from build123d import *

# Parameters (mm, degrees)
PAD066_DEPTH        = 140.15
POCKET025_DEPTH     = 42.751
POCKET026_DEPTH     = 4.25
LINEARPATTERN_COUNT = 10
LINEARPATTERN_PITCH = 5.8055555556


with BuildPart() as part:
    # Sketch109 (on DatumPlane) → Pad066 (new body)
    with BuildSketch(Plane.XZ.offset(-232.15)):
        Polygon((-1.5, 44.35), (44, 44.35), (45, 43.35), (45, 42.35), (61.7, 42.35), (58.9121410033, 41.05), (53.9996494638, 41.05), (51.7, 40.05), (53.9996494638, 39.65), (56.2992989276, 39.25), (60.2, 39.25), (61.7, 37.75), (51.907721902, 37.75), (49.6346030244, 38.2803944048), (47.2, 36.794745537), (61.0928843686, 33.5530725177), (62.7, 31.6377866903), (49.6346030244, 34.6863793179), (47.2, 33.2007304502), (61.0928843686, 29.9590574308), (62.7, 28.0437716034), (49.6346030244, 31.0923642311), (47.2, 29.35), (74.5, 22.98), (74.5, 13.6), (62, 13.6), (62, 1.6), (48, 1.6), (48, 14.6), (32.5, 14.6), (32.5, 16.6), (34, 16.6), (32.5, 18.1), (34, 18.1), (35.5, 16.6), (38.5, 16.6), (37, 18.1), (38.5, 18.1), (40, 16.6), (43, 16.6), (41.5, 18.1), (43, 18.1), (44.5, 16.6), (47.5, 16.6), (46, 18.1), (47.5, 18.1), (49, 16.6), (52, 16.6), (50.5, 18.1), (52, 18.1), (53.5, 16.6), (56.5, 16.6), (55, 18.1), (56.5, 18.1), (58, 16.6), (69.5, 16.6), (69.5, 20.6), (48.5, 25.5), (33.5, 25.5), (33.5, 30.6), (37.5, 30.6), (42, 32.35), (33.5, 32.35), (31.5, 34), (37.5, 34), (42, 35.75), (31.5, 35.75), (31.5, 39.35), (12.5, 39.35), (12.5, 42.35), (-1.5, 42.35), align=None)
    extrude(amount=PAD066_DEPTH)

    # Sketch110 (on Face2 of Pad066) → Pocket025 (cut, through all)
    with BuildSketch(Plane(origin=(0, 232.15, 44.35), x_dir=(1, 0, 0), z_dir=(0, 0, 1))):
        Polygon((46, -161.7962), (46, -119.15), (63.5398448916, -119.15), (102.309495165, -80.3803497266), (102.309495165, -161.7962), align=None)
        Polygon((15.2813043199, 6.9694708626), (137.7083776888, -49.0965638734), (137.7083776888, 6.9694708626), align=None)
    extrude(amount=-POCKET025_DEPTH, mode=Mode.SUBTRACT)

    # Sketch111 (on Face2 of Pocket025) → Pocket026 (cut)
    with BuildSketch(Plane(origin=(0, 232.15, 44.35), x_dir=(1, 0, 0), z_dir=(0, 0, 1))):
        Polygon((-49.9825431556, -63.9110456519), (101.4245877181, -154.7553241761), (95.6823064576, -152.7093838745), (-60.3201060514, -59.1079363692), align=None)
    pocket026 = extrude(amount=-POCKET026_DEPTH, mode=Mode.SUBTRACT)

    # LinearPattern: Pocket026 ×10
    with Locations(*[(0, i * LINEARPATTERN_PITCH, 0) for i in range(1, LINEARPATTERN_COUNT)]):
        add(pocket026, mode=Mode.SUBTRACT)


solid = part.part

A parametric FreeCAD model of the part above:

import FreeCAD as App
import Part
import Sketcher

V = App.Vector
Q = App.Units.Quantity


def add_polygon(sketch, points):
    """Adds a closed chain of lines whose ends are joined by coincident constraints."""
    first, n = sketch.GeometryCount, len(points)
    for a, b in zip(points, points[1:] + points[:1]):
        sketch.addGeometry(Part.LineSegment(App.Vector(*a, 0), App.Vector(*b, 0)), False)
    for i in range(n):
        sketch.addConstraint(Sketcher.Constraint("Coincident", first + i, 2, first + (i + 1) % n, 1))

doc = App.newDocument("Part")
body = doc.addObject("PartDesign::Body", "Body")

sketch1 = doc.addObject("Sketcher::SketchObject", "Sketch")
body.addObject(sketch1)
sketch1.AttachmentSupport = (doc.XZ_Plane, [""])
sketch1.MapMode = "FlatFace"
sketch1.AttachmentOffset = App.Placement(V(0, 0, -232.15), App.Rotation())
add_polygon(sketch1, [(44, 44.4), (-1.5, 44.4), (-1.5, 42.4), (12.5, 42.4), (12.5, 39.4), (31.5, 39.4), (31.5, 35.8), (42, 35.8), (37.5, 34), (31.5, 34), (33.5, 32.4), (42, 32.4), (37.5, 30.6), (33.5, 30.6), (33.5, 25.5), (48.5, 25.5), (69.5, 20.6), (69.5, 16.6), (58, 16.6), (56.5, 18.1), (55, 18.1), (56.5, 16.6), (53.5, 16.6), (52, 18.1), (50.5, 18.1), (52, 16.6), (49, 16.6), (47.5, 18.1), (46, 18.1), (47.5, 16.6), (44.5, 16.6), (43, 18.1), (41.5, 18.1), (43, 16.6), (40, 16.6), (38.5, 18.1), (37, 18.1), (38.5, 16.6), (35.5, 16.6), (34, 18.1), (32.5, 18.1), (34, 16.6), (32.5, 16.6), (32.5, 14.6), (48, 14.6), (48, 1.6), (62, 1.6), (62, 13.6), (74.5, 13.6), (74.5, 23), (47.2, 29.4), (49.6, 31.1), (62.7, 28), (61.1, 30), (47.2, 33.2), (49.6, 34.7), (62.7, 31.6), (61.1, 33.6), (47.2, 36.8), (49.6, 38.3), (51.9, 37.8), (61.7, 37.8), (60.2, 39.2), (56.3, 39.2), (51.7, 40), (54, 41), (58.9, 41), (61.7, 42.4), (45, 42.4), (45, 43.4)])
sketch1.addConstraint([
    Sketcher.Constraint("Horizontal", 0),
    Sketcher.Constraint("Vertical", 1),
    Sketcher.Constraint("Horizontal", 2),
    Sketcher.Constraint("Vertical", 3),
    Sketcher.Constraint("Horizontal", 4),
    Sketcher.Constraint("Vertical", 5),
    Sketcher.Constraint("Horizontal", 6),
    Sketcher.Constraint("Horizontal", 8),
    Sketcher.Constraint("Horizontal", 10),
    Sketcher.Constraint("Horizontal", 12),
    Sketcher.Constraint("Vertical", 13),
    Sketcher.Constraint("Horizontal", 14),
    Sketcher.Constraint("Vertical", 16),
    Sketcher.Constraint("Horizontal", 17),
    Sketcher.Constraint("Horizontal", 19),
    Sketcher.Constraint("Horizontal", 21),
    Sketcher.Constraint("Horizontal", 23),
    Sketcher.Constraint("Horizontal", 25),
    Sketcher.Constraint("Horizontal", 27),
    Sketcher.Constraint("Horizontal", 29),
    Sketcher.Constraint("Horizontal", 31),
    Sketcher.Constraint("Horizontal", 33),
    Sketcher.Constraint("Horizontal", 35),
    Sketcher.Constraint("Horizontal", 37),
    Sketcher.Constraint("Horizontal", 39),
    Sketcher.Constraint("Horizontal", 41),
    Sketcher.Constraint("Vertical", 42),
    Sketcher.Constraint("Horizontal", 43),
    Sketcher.Constraint("Vertical", 44),
    Sketcher.Constraint("Horizontal", 45),
    Sketcher.Constraint("Vertical", 46),
    Sketcher.Constraint("Horizontal", 47),
    Sketcher.Constraint("Vertical", 48),
    Sketcher.Constraint("Horizontal", 60),
    Sketcher.Constraint("Horizontal", 62),
    Sketcher.Constraint("Horizontal", 65),
    Sketcher.Constraint("Horizontal", 67),
    Sketcher.Constraint("Vertical", 68),
    Sketcher.Constraint("Parallel", 7, 11),
    Sketcher.Constraint("Parallel", 18, 20),
    Sketcher.Constraint("Parallel", 20, 22),
    Sketcher.Constraint("Parallel", 22, 24),
    Sketcher.Constraint("Parallel", 24, 26),
    Sketcher.Constraint("Parallel", 26, 28),
    Sketcher.Constraint("Parallel", 28, 30),
    Sketcher.Constraint("Parallel", 30, 32),
    Sketcher.Constraint("Parallel", 32, 34),
    Sketcher.Constraint("Parallel", 34, 36),
    Sketcher.Constraint("Parallel", 36, 38),
    Sketcher.Constraint("Parallel", 38, 40),
    Sketcher.Constraint("Parallel", 15, 49),
    Sketcher.Constraint("Parallel", 49, 51),
    Sketcher.Constraint("Parallel", 51, 53),
    Sketcher.Constraint("Parallel", 53, 55),
    Sketcher.Constraint("Parallel", 52, 56),
    Sketcher.Constraint("Parallel", 55, 57),
    Sketcher.Constraint("Parallel", 54, 58),
    Sketcher.Constraint("Parallel", 57, 59),
    Sketcher.Constraint("Parallel", 40, 61),
    Sketcher.Constraint("Parallel", 61, 69),
    Sketcher.Constraint("Horizontal", 17, 2, 20, 2),
    Sketcher.Constraint("Horizontal", 19, 2, 22, 2),
    Sketcher.Constraint("Horizontal", 21, 2, 24, 2),
    Sketcher.Constraint("Horizontal", 23, 2, 26, 2),
    Sketcher.Constraint("Horizontal", 25, 2, 28, 2),
    Sketcher.Constraint("Horizontal", 27, 2, 30, 2),
    Sketcher.Constraint("Horizontal", 29, 2, 32, 2),
    Sketcher.Constraint("Horizontal", 31, 2, 34, 2),
    Sketcher.Constraint("Horizontal", 33, 2, 36, 2),
    Sketcher.Constraint("Horizontal", 35, 2, 38, 2),
    Sketcher.Constraint("Horizontal", 37, 2, 40, 2),
    Sketcher.Constraint("Horizontal", 2, 2, 66, 2),
    Sketcher.Constraint("Vertical", 5, 2, 8, 2),
    Sketcher.Constraint("Vertical", 6, 2, 10, 2),
    Sketcher.Constraint("Vertical", 7, 2, 11, 2),
    Sketcher.Constraint("Vertical", 9, 2, 12, 2),
    Sketcher.Constraint("Vertical", 18, 2, 20, 2),
    Sketcher.Constraint("Vertical", 22, 2, 24, 2),
    Sketcher.Constraint("Vertical", 26, 2, 28, 2),
    Sketcher.Constraint("Vertical", 30, 2, 32, 2),
    Sketcher.Constraint("Vertical", 34, 2, 36, 2),
    Sketcher.Constraint("Vertical", 38, 2, 40, 2),
    Sketcher.Constraint("Vertical", 39, 2, 41, 2),
    Sketcher.Constraint("Vertical", 49, 2, 53, 2),
    Sketcher.Constraint("Vertical", 50, 2, 54, 2),
    Sketcher.Constraint("Vertical", 51, 2, 55, 2),
    Sketcher.Constraint("Vertical", 52, 2, 56, 2),
    Sketcher.Constraint("Vertical", 53, 2, 57, 2),
    Sketcher.Constraint("Vertical", 54, 2, 58, 2),
    Sketcher.Constraint("Vertical", 60, 2, 66, 2),
    Sketcher.Constraint("Equal", 21, 25),
    Sketcher.Constraint("Equal", 25, 29),
    Sketcher.Constraint("Equal", 29, 33),
    Sketcher.Constraint("Equal", 33, 37),
    Sketcher.Constraint("Equal", 2, 45),
    Sketcher.Constraint("Equal", 37, 3),
    Sketcher.Constraint("Equal", 12, 16),
    Sketcher.Constraint("Equal", 1, 42),
    Sketcher.Constraint("Equal", 40, 61),
    Sketcher.Constraint("DistanceX", 2, 1, 2, 2, Q("14 mm")),
    Sketcher.Constraint("DistanceX", 4, 1, 4, 2, Q("19 mm")),
    Sketcher.Constraint("DistanceX", 8, 2, 8, 1, Q("6 mm")),
    Sketcher.Constraint("DistanceX", 12, 2, 12, 1, Q("4 mm")),
    Sketcher.Constraint("DistanceX", 14, 1, 14, 2, Q("15 mm")),
    Sketcher.Constraint("DistanceX", 21, 2, 21, 1, Q("3 mm")),
    Sketcher.Constraint("DistanceY", 1, 2, 1, 1, Q("2 mm")),
    Sketcher.Constraint("DistanceY", 44, 2, 44, 1, Q("13 mm")),
    Sketcher.Constraint("DistanceY", 46, 1, 46, 2, Q("12 mm")),
    Sketcher.Constraint("DistanceY", 68, 1, 68, 2, Q("1 mm")),
    Sketcher.Constraint("Angle", 18, Q("135 deg")),
    Sketcher.Constraint("Angle", 52, Q("130 deg")),
    Sketcher.Constraint("Angle", 66, Q("25 deg")),
    Sketcher.Constraint("DistanceX", 0, 2, 0, 1, Q("45.5 mm")),
    Sketcher.Constraint("DistanceX", 6, 1, 6, 2, Q("10.5 mm")),
    Sketcher.Constraint("DistanceX", 17, 2, 17, 1, Q("11.5 mm")),
    Sketcher.Constraint("DistanceX", 19, 2, 19, 1, Q("1.5 mm")),
    Sketcher.Constraint("DistanceX", 43, 1, 43, 2, Q("15.5 mm")),
    Sketcher.Constraint("DistanceX", 47, 1, 47, 2, Q("12.5 mm")),
    Sketcher.Constraint("DistanceX", 67, 2, 67, 1, Q("16.7 mm")),
    Sketcher.Constraint("DistanceY", 5, 2, 5, 1, Q("3.6 mm")),
    Sketcher.Constraint("DistanceY", 13, 2, 13, 1, Q("5.1 mm")),
    Sketcher.Constraint("DistanceX", -1, 1, 6, 2, Q("42 mm")),
    Sketcher.Constraint("DistanceY", -1, 1, 7, 2, Q("34 mm")),
    Sketcher.Constraint("DistanceX", -1, 1, 17, 2, Q("58 mm")),
    Sketcher.Constraint("DistanceY", 48, 1, 48, 2, Q("9.38 mm")),
    Sketcher.Constraint("DistanceY", -1, 1, 11, 2, Q("30.6 mm")),
    Sketcher.Constraint("DistanceY", -1, 1, 15, 2, Q("20.6 mm")),
    Sketcher.Constraint("DistanceX", -1, 1, 49, 2, Q("47.2 mm")),
    Sketcher.Constraint("DistanceX", -1, 1, 51, 2, Q("62.7 mm")),
    Sketcher.Constraint("DistanceX", -1, 1, 63, 2, Q("51.7 mm")),
    Sketcher.Constraint("DistanceY", -1, 1, 0, 2, Q("44.35 mm")),
    Sketcher.Constraint("DistanceY", -1, 1, 59, 2, Q("37.75 mm")),
    Sketcher.Constraint("DistanceY", -1, 1, 63, 2, Q("40.05 mm")),
    Sketcher.Constraint("DistanceY", -1, 1, 64, 2, Q("41.05 mm")),
    Sketcher.Constraint("DistanceX", 62, 2, 62, 1, Q("3.900701 mm")),
    Sketcher.Constraint("DistanceX", 60, 1, 60, 2, Q("9.792278 mm")),
    Sketcher.Constraint("DistanceX", 65, 1, 65, 2, Q("4.912492 mm")),
    Sketcher.Constraint("Distance", 52, Q("2.500228 mm")),
    Sketcher.Constraint("Distance", 59, Q("2.334178 mm")),
    Sketcher.Constraint("DistanceY", -1, 1, 51, 2, Q("28.043772 mm")),
])
pad1 = doc.addObject("PartDesign::Pad", "Pad")
body.addObject(pad1)
pad1.Profile = sketch1
pad1.Length = 140.15

sketch2 = doc.addObject("Sketcher::SketchObject", "Sketch001")
body.addObject(sketch2)
sketch2.AttachmentSupport = (doc.XY_Plane, [""])
sketch2.MapMode = "FlatFace"
sketch2.AttachmentOffset = App.Placement(V(0, 0, 44.35), App.Rotation())
add_polygon(sketch2, [(46, 113), (46, 70), (102, 70), (102, 152), (64, 113)])
add_polygon(sketch2, [(15, 239), (138, 183), (138, 239)])
sketch2.addConstraint([
    Sketcher.Constraint("Vertical", 0),
    Sketcher.Constraint("Horizontal", 1),
    Sketcher.Constraint("Vertical", 2),
    Sketcher.Constraint("Horizontal", 4),
    Sketcher.Constraint("Vertical", 6),
    Sketcher.Constraint("Horizontal", 7),
    Sketcher.Constraint("Angle", 3, Q("-135 deg")),
    Sketcher.Constraint("DistanceX", -1, 1, 0, 2, Q("46 mm")),
    Sketcher.Constraint("DistanceY", -1, 1, 3, 2, Q("113 mm")),
    Sketcher.Constraint("DistanceY", 0, 2, 0, 1, Q("42.6462 mm")),
    Sketcher.Constraint("DistanceY", 2, 1, 2, 2, Q("81.41585 mm")),
    Sketcher.Constraint("Distance", 5, Q("134.65433 mm")),
    Sketcher.Constraint("DistanceX", 1, 1, 1, 2, Q("56.309495 mm")),
    Sketcher.Constraint("DistanceX", 7, 2, 7, 1, Q("122.427073 mm")),
    Sketcher.Constraint("DistanceY", -1, 1, 6, 2, Q("239.119471 mm")),
    Sketcher.Constraint("DistanceX", 7, 2, 2, 2, Q("87.028191 mm")),
])
pocket1 = doc.addObject("PartDesign::Pocket", "Pocket")
body.addObject(pocket1)
pocket1.Profile = sketch2
pocket1.Type = "ThroughAll"

sketch3 = doc.addObject("Sketcher::SketchObject", "Sketch002")
body.addObject(sketch3)
sketch3.AttachmentSupport = (doc.XY_Plane, [""])
sketch3.MapMode = "FlatFace"
sketch3.AttachmentOffset = App.Placement(V(0, 0, 44.35), App.Rotation())
add_polygon(sketch3, [(101, 77), (-50, 168), (-60, 173), (96, 79)])
sketch3.addConstraint([
    Sketcher.Constraint("Parallel", 0, 2),
    Sketcher.Constraint("Distance", 0, Q("176.569539 mm")),
    Sketcher.Constraint("DistanceY", 0, 2, 1, 2, Q("4.803109 mm")),
    Sketcher.Constraint("DistanceX", 0, 2, 2, 2, Q("145.66485 mm")),
    Sketcher.Constraint("DistanceY", 2, 2, 0, 2, Q("88.798338 mm")),
    Sketcher.Constraint("DistanceX", 2, 2, 3, 2, Q("5.742281 mm")),
    Sketcher.Constraint("DistanceX", 0, 2, -1, 1, Q("49.982543 mm")),
    Sketcher.Constraint("DistanceY", -1, 1, 0, 2, Q("168.238954 mm")),
])
pocket2 = doc.addObject("PartDesign::Pocket", "Pocket001")
body.addObject(pocket2)
pocket2.Profile = sketch3
pocket2.Length = 4.25
doc.recompute()

linearpattern = doc.addObject("PartDesign::LinearPattern", "LinearPattern")
body.addObject(linearpattern)
linearpattern.Originals = [pocket2]
linearpattern.Direction = (doc.Y_Axis, [""])
linearpattern.Mode = "offset"
linearpattern.Offset = 5.805556
linearpattern.Occurrences = 10
body.Tip = linearpattern

doc.recompute()
